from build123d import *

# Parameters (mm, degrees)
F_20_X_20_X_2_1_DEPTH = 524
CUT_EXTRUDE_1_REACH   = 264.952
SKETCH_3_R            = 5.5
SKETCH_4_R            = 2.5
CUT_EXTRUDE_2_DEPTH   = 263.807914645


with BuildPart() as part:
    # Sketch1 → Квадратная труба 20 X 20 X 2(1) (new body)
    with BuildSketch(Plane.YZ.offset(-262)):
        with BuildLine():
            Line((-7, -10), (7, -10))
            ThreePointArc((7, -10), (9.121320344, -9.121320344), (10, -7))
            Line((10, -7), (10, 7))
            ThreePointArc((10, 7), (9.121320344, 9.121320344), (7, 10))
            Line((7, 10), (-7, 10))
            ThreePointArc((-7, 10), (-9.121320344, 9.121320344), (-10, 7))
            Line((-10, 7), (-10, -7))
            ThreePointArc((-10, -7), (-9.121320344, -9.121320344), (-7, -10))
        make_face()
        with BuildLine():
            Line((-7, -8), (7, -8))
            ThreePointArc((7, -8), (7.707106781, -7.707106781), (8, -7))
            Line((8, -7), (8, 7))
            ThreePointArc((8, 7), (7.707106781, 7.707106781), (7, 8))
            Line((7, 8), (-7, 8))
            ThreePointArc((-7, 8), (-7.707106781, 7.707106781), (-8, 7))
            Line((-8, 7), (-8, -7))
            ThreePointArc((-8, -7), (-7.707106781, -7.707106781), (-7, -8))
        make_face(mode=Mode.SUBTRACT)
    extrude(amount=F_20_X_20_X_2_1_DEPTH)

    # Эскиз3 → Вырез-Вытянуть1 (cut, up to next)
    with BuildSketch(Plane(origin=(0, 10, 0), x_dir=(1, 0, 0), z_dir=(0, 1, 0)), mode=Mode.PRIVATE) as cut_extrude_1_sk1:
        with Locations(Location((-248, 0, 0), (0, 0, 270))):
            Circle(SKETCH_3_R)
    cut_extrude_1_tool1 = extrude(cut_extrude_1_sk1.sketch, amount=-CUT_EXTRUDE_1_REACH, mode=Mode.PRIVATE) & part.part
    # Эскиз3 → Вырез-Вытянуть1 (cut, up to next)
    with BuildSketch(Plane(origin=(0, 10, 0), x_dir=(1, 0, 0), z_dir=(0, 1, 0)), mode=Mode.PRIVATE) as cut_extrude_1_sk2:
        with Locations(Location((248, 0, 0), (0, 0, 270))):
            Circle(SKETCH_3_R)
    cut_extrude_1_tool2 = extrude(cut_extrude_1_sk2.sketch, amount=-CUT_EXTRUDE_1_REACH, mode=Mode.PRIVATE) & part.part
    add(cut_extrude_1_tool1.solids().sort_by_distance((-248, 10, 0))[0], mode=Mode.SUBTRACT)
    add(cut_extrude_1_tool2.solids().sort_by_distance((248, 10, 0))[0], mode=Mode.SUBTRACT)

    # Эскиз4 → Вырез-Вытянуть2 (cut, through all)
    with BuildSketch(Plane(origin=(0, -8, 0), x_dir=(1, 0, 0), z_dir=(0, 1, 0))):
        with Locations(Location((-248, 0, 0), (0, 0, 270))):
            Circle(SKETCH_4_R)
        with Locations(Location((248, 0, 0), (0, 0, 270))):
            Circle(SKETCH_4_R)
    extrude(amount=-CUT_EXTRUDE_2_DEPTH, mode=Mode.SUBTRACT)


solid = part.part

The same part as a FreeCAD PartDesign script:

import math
import FreeCAD as App
import Part
import Sketcher
from FreeCAD import Vector

doc = App.newDocument("Part")
params = doc.addObject("Spreadsheet::Sheet", "Params")
for row, (alias, value) in enumerate([
    ("sketch1_radius", "3 mm"),
    ("sketch1_radius2", "1 mm"),
    ("sketch1_width", "14 mm"),
    ("pad1_length", "524 mm"),
    ("sketch2_diameter", "11 mm"),
    ("sketch3_diameter", "11 mm"),
    ("sketch4_diameter", "5 mm"),
], start=1):
    params.set(f"A{row}", alias)
    params.set(f"B{row}", "=" + value)
    params.setAlias(f"B{row}", alias)

body = doc.addObject("PartDesign::Body", "Body")

# Sketch on YZ plane
sketch1 = doc.addObject("Sketcher::SketchObject", "Sketch")
body.addObject(sketch1)
sketch1.AttachmentSupport = (doc.YZ_Plane, [""])
sketch1.MapMode = "FlatFace"
sketch1.AttachmentOffset = App.Placement(Vector(0, 0, -262), App.Rotation())
sketch1.addGeometry([
    Part.LineSegment(Vector(-7, -10, 0), Vector(7, -10, 0)),  # 0
    Part.ArcOfCircle(Part.Circle(Vector(7, -7, 0), Vector(0, 0, 1), 3), math.radians(-90), math.radians(0)),  # 1
    Part.LineSegment(Vector(10, -7, 0), Vector(10, 7, 0)),  # 2
    Part.ArcOfCircle(Part.Circle(Vector(7, 7, 0), Vector(0, 0, 1), 3), math.radians(0), math.radians(90)),  # 3
    Part.LineSegment(Vector(7, 10, 0), Vector(-7, 10, 0)),  # 4
    Part.ArcOfCircle(Part.Circle(Vector(-7, 7, 0), Vector(0, 0, 1), 3), math.radians(90), math.radians(180)),  # 5
    Part.LineSegment(Vector(-10, 7, 0), Vector(-10, -7, 0)),  # 6
    Part.ArcOfCircle(Part.Circle(Vector(-7, -7, 0), Vector(0, 0, 1), 3), math.radians(180), math.radians(270)),  # 7
    Part.LineSegment(Vector(7, -8, 0), Vector(-7, -8, 0)),  # 8
    Part.ArcOfCircle(Part.Circle(Vector(-7, -7, 0), Vector(0, 0, 1), 1), math.radians(-180), math.radians(-90)),  # 9
    Part.LineSegment(Vector(-8, -7, 0), Vector(-8, 7, 0)),  # 10
    Part.ArcOfCircle(Part.Circle(Vector(-7, 7, 0), Vector(0, 0, 1), 1), math.radians(90), math.radians(180)),  # 11
    Part.LineSegment(Vector(-7, 8, 0), Vector(7, 8, 0)),  # 12
    Part.ArcOfCircle(Part.Circle(Vector(7, 7, 0), Vector(0, 0, 1), 1), math.radians(0), math.radians(90)),  # 13
    Part.LineSegment(Vector(8, 7, 0), Vector(8, -7, 0)),  # 14
    Part.ArcOfCircle(Part.Circle(Vector(7, -7, 0), Vector(0, 0, 1), 1), math.radians(-90), math.radians(0)),  # 15
], False)
sketch1.addConstraint([
    Sketcher.Constraint("Tangent", 0, 2, 1, 1),
    Sketcher.Constraint("Tangent", 1, 2, 2, 1),
    Sketcher.Constraint("Tangent", 2, 2, 3, 1),
    Sketcher.Constraint("Tangent", 3, 2, 4, 1),
    Sketcher.Constraint("Tangent", 4, 2, 5, 1),
    Sketcher.Constraint("Tangent", 5, 2, 6, 1),
    Sketcher.Constraint("Tangent", 6, 2, 7, 1),
    Sketcher.Constraint("Tangent", 7, 2, 0, 1),
    Sketcher.Constraint("Tangent", 8, 2, 9, 2),
    Sketcher.Constraint("Tangent", 9, 1, 10, 1),
    Sketcher.Constraint("Tangent", 10, 2, 11, 2),
    Sketcher.Constraint("Tangent", 11, 1, 12, 1),
    Sketcher.Constraint("Tangent", 12, 2, 13, 2),
    Sketcher.Constraint("Tangent", 13, 1, 14, 1),
    Sketcher.Constraint("Tangent", 14, 2, 15, 2),
    Sketcher.Constraint("Tangent", 15, 1, 8, 1),
    Sketcher.Constraint("Horizontal", 0),
    Sketcher.Constraint("Vertical", 2),
    Sketcher.Constraint("Horizontal", 4),
    Sketcher.Constraint("Vertical", 6),
    Sketcher.Constraint("Horizontal", 8),
    Sketcher.Constraint("Vertical", 10),
    Sketcher.Constraint("Horizontal", 12),
    Sketcher.Constraint("Vertical", 14),
    Sketcher.Constraint("Coincident", 9, 3, 7, 3),
    Sketcher.Constraint("Coincident", 11, 3, 5, 3),
    Sketcher.Constraint("Coincident", 13, 3, 3, 3),
    Sketcher.Constraint("Equal", 1, 3),
    Sketcher.Constraint("Equal", 3, 5),
    Sketcher.Constraint("Equal", 5, 7),
    Sketcher.Constraint("Equal", 13, 15),
    Sketcher.Constraint("Symmetric", 1, 3, 5, 3, -1, 1),
    Sketcher.Constraint("Equal", 12, 2),
    Sketcher.Constraint("Radius", 1, 3.0),
    Sketcher.Constraint("Radius", 9, 1.0),
    Sketcher.Constraint("DistanceX", 0, 1, 0, 2, 14.0),
])
sketch1.setExpression("Constraints[33]", "Params.sketch1_radius")
sketch1.setExpression("Constraints[34]", "Params.sketch1_radius2")
sketch1.setExpression("Constraints[35]", "Params.sketch1_width")
pad1 = doc.addObject("PartDesign::Pad", "Pad")
body.addObject(pad1)
pad1.Profile = sketch1
pad1.setExpression("Length", "Params.pad1_length")

# Sketch on XZ plane
sketch2 = doc.addObject("Sketcher::SketchObject", "Sketch001")
body.addObject(sketch2)
sketch2.AttachmentSupport = (doc.XZ_Plane, [""])
sketch2.MapMode = "FlatFace"
sketch2.AttachmentOffset = App.Placement(Vector(0, 0, -10), App.Rotation())
sketch2.addGeometry(Part.Circle(Vector(-248, 0, 0), Vector(0, 0, 1), 5.5), False)
sketch2.addConstraint([
    Sketcher.Constraint("PointOnObject", 0, 3, -1),
    Sketcher.Constraint("Diameter", 0, 11.0),
    Sketcher.Constraint("DistanceX", 0, 3, -1, 1, 248.0),
])
sketch2.setExpression("Constraints[1]", "Params.sketch2_diameter")
pocket1 = doc.addObject("PartDesign::Pocket", "Pocket")
body.addObject(pocket1)
pocket1.Profile = sketch2
pocket1.Type = "UpToFirst"
pocket1.Reversed = True

# Sketch on XZ plane
sketch3 = doc.addObject("Sketcher::SketchObject", "Sketch002")
body.addObject(sketch3)
sketch3.AttachmentSupport = (doc.XZ_Plane, [""])
sketch3.MapMode = "FlatFace"
sketch3.AttachmentOffset = App.Placement(Vector(0, 0, -10), App.Rotation())
sketch3.addGeometry(Part.Circle(Vector(248, 0, 0), Vector(0, 0, 1), 5.5), False)
sketch3.addConstraint([
    Sketcher.Constraint("PointOnObject", 0, 3, -1),
    Sketcher.Constraint("Diameter", 0, 11.0),
    Sketcher.Constraint("DistanceX", -1, 1, 0, 3, 248.0),
])
sketch3.setExpression("Constraints[1]", "Params.sketch3_diameter")
pocket2 = doc.addObject("PartDesign::Pocket", "Pocket001")
body.addObject(pocket2)
pocket2.Profile = sketch3
pocket2.Type = "UpToFirst"
pocket2.Reversed = True

# Sketch on XZ plane
sketch4 = doc.addObject("Sketcher::SketchObject", "Sketch003")
body.addObject(sketch4)
sketch4.AttachmentSupport = (doc.XZ_Plane, [""])
sketch4.MapMode = "FlatFace"
sketch4.AttachmentOffset = App.Placement(Vector(0, 0, 8), App.Rotation())
sketch4.addGeometry([
    Part.Circle(Vector(-248, 0, 0), Vector(0, 0, 1), 2.5),
    Part.Circle(Vector(248, 0, 0), Vector(0, 0, 1), 2.5),
], False)
sketch4.addConstraint([
    Sketcher.Constraint("Equal", 0, 1),
    Sketcher.Constraint("Symmetric", 0, 3, 1, 3, -1, 1),
    Sketcher.Constraint("PointOnObject", 0, 3, -1),
    Sketcher.Constraint("Diameter", 0, 5.0),
    Sketcher.Constraint("DistanceX", 0, 3, -1, 1, 248.0),
])
sketch4.setExpression("Constraints[3]", "Params.sketch4_diameter")
pocket3 = doc.addObject("PartDesign::Pocket", "Pocket002")
body.addObject(pocket3)
pocket3.Profile = sketch4
pocket3.Type = "ThroughAll"
pocket3.Reversed = True

doc.recompute()
